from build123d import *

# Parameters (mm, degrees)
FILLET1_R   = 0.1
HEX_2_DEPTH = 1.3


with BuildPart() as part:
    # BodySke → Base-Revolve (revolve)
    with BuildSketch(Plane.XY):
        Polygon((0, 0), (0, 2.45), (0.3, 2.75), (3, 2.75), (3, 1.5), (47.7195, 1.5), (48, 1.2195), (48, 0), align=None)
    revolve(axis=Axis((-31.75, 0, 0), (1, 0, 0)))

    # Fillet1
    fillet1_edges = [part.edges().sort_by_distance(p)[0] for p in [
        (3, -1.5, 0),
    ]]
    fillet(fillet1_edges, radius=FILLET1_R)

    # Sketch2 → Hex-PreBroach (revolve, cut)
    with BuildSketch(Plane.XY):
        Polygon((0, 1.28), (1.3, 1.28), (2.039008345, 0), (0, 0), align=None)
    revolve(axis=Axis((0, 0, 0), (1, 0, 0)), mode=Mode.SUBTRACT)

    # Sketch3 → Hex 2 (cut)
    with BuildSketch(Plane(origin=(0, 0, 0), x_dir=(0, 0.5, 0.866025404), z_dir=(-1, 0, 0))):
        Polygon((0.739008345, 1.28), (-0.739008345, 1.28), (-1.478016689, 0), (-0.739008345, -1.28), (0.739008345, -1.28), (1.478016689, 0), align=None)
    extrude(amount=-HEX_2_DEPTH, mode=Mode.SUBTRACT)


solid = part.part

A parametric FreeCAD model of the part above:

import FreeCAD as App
import Part
import Sketcher
Q = App.Units.Quantity


def edges_at(feature, points):
    """Names of the edges that pass closest to the given points."""
    edges = feature.Shape.Edges
    near = lambda p: min(range(len(edges)), key=lambda i: edges[i].distToShape(Part.Vertex(*p))[0])
    return sorted({f"Edge{near(p) + 1}" for p in points})

doc = App.newDocument("Part")
params = doc.addObject("Spreadsheet::Sheet", "Params")
for row, (alias, value) in enumerate([
    ("sketch1_width", "48 mm"),
    ("sketch1_width2", "2.7 mm"),
    ("sketch1_height", "2.45 mm"),
    ("sketch1_height2", "1.25 mm"),
    ("revolution_angle", "360 deg"),
    ("fillet_radius", "0.1 mm"),
    ("sketch2_width", "1.3 mm"),
    ("sketch2_height", "1.28 mm"),
    ("groove_angle", "360 deg"),
    ("pocket1_length", "1.3 mm"),
], start=1):
    params.set(f"A{row}", alias)
    params.set(f"B{row}", "=" + value)
    params.setAlias(f"B{row}", alias)

body = doc.addObject("PartDesign::Body", "Body")

# Sketch on XY plane
sketch1 = doc.addObject("Sketcher::SketchObject", "Sketch")
body.addObject(sketch1)
sketch1.AttachmentSupport = (doc.XY_Plane, [""])
sketch1.MapMode = "FlatFace"
sketch1.addGeometry([
    Part.LineSegment(App.Vector(0, 2.45, 0), App.Vector(0, 0, 0)),  # 0
    Part.LineSegment(App.Vector(0, 0, 0), App.Vector(48, 0, 0)),  # 1
    Part.LineSegment(App.Vector(48, 0, 0), App.Vector(48, 1.2195, 0)),  # 2
    Part.LineSegment(App.Vector(48, 1.2195, 0), App.Vector(47.7195, 1.5, 0)),  # 3
    Part.LineSegment(App.Vector(47.7195, 1.5, 0), App.Vector(3, 1.5, 0)),  # 4
    Part.LineSegment(App.Vector(3, 1.5, 0), App.Vector(3, 2.75, 0)),  # 5
    Part.LineSegment(App.Vector(3, 2.75, 0), App.Vector(0.3, 2.75, 0)),  # 6
    Part.LineSegment(App.Vector(0.3, 2.75, 0), App.Vector(0, 2.45, 0)),  # 7
], False)
sketch1.addConstraint([
    Sketcher.Constraint("Coincident", 0, 2, 1, 1),
    Sketcher.Constraint("Coincident", 1, 2, 2, 1),
    Sketcher.Constraint("Coincident", 2, 2, 3, 1),
    Sketcher.Constraint("Coincident", 3, 2, 4, 1),
    Sketcher.Constraint("Coincident", 4, 2, 5, 1),
    Sketcher.Constraint("Coincident", 5, 2, 6, 1),
    Sketcher.Constraint("Coincident", 6, 2, 7, 1),
    Sketcher.Constraint("Coincident", 7, 2, 0, 1),
    Sketcher.Constraint("Vertical", 0),
    Sketcher.Constraint("Horizontal", 1),
    Sketcher.Constraint("Vertical", 2),
    Sketcher.Constraint("Horizontal", 4),
    Sketcher.Constraint("Vertical", 5),
    Sketcher.Constraint("Horizontal", 6),
    Sketcher.Constraint("Coincident", 0, 2, -1, 1),
    Sketcher.Constraint("Perpendicular", 3, 7),
    Sketcher.Constraint("DistanceX", 1, 1, 1, 2, 48.0),
    Sketcher.Constraint("Angle", 3, Q("135 deg")),
    Sketcher.Constraint("DistanceX", 6, 2, 6, 1, 2.7),
    Sketcher.Constraint("DistanceX", -1, 1, 4, 2, 3.0),
    Sketcher.Constraint("DistanceY", 0, 2, 0, 1, 2.45),
    Sketcher.Constraint("DistanceY", 5, 1, 5, 2, 1.25),
    Sketcher.Constraint("DistanceX", 4, 2, 4, 1, 44.7195),
])
sketch1.setExpression("Constraints[16]", "Params.sketch1_width")
sketch1.setExpression("Constraints[18]", "Params.sketch1_width2")
sketch1.setExpression("Constraints[20]", "Params.sketch1_height")
sketch1.setExpression("Constraints[21]", "Params.sketch1_height2")
revolution = doc.addObject("PartDesign::Revolution", "Revolution")
body.addObject(revolution)
revolution.Profile = sketch1
revolution.ReferenceAxis = (sketch1, ["H_Axis"])
revolution.setExpression("Angle", "Params.revolution_angle")
doc.recompute()

fillet = doc.addObject("PartDesign::Fillet", "Fillet")
body.addObject(fillet)
fillet.Base = (revolution, edges_at(revolution, [(3, -1.5, 0)]))
fillet.setExpression("Radius", "Params.fillet_radius")

# Sketch on XY plane
sketch2 = doc.addObject("Sketcher::SketchObject", "Sketch001")
body.addObject(sketch2)
sketch2.AttachmentSupport = (doc.XY_Plane, [""])
sketch2.MapMode = "FlatFace"
sketch2.addGeometry([
    Part.LineSegment(App.Vector(1.3, 1.28, 0), App.Vector(0, 1.28, 0)),
    Part.LineSegment(App.Vector(0, 1.28, 0), App.Vector(0, 0, 0)),
    Part.LineSegment(App.Vector(0, 0, 0), App.Vector(2.039008, 0, 0)),
    Part.LineSegment(App.Vector(2.039008, 0, 0), App.Vector(1.3, 1.28, 0)),
], False)
sketch2.addConstraint([
    Sketcher.Constraint("Coincident", 0, 2, 1, 1),
    Sketcher.Constraint("Coincident", 1, 2, 2, 1),
    Sketcher.Constraint("Coincident", 2, 2, 3, 1),
    Sketcher.Constraint("Coincident", 3, 2, 0, 1),
    Sketcher.Constraint("Horizontal", 0),
    Sketcher.Constraint("Vertical", 1),
    Sketcher.Constraint("Horizontal", 2),
    Sketcher.Constraint("Coincident", 1, 2, -1, 1),
    Sketcher.Constraint("Angle", 3, Q("120 deg")),
    Sketcher.Constraint("DistanceX", 0, 2, 0, 1, 1.3),
    Sketcher.Constraint("DistanceY", 1, 2, 1, 1, 1.28),
])
sketch2.setExpression("Constraints[9]", "Params.sketch2_width")
sketch2.setExpression("Constraints[10]", "Params.sketch2_height")
groove = doc.addObject("PartDesign::Groove", "Groove")
body.addObject(groove)
groove.Profile = sketch2
groove.ReferenceAxis = (sketch2, ["H_Axis"])
groove.setExpression("Angle", "Params.groove_angle")

# Sketch on YZ plane
sketch3 = doc.addObject("Sketcher::SketchObject", "Sketch002")
body.addObject(sketch3)
sketch3.AttachmentSupport = (doc.YZ_Plane, [""])
sketch3.MapMode = "FlatFace"
sketch3.addGeometry([
    Part.LineSegment(App.Vector(1.478017, 0, 0), App.Vector(0.739008, -1.28, 0)),  # 0
    Part.LineSegment(App.Vector(0.739008, -1.28, 0), App.Vector(-0.739008, -1.28, 0)),  # 1
    Part.LineSegment(App.Vector(-0.739008, -1.28, 0), App.Vector(-1.478017, 0, 0)),  # 2
    Part.LineSegment(App.Vector(-1.478017, 0, 0), App.Vector(-0.739008, 1.28, 0)),  # 3
    Part.LineSegment(App.Vector(-0.739008, 1.28, 0), App.Vector(0.739008, 1.28, 0)),  # 4
    Part.LineSegment(App.Vector(0.739008, 1.28, 0), App.Vector(1.478017, 0, 0)),  # 5
], False)
sketch3.addConstraint([
    Sketcher.Constraint("Coincident", 0, 2, 1, 1),
    Sketcher.Constraint("Coincident", 1, 2, 2, 1),
    Sketcher.Constraint("Coincident", 2, 2, 3, 1),
    Sketcher.Constraint("Coincident", 3, 2, 4, 1),
    Sketcher.Constraint("Coincident", 4, 2, 5, 1),
    Sketcher.Constraint("Coincident", 5, 2, 0, 1),
    Sketcher.Constraint("Horizontal", 1),
    Sketcher.Constraint("Horizontal", 4),
    Sketcher.Constraint("Symmetric", 0, 2, 3, 2, -1, 1),
    Sketcher.Constraint("Symmetric", 2, 2, 5, 2, -1, 1),
    Sketcher.Constraint("PointOnObject", 2, 2, -1),
    Sketcher.Constraint("Parallel", 2, 5),
    Sketcher.Constraint("Vertical", 1, 2, 3, 2),
    Sketcher.Constraint("Angle", 0, Q("-120 deg")),
    Sketcher.Constraint("DistanceY", 0, 2, -1, 1, 1.28),
    Sketcher.Constraint("DistanceX", 1, 2, 1, 1, 1.478017),
])
pocket1 = doc.addObject("PartDesign::Pocket", "Pocket")
body.addObject(pocket1)
pocket1.Profile = sketch3
pocket1.setExpression("Length", "Params.pocket1_length")
pocket1.Reversed = True

doc.recompute()
